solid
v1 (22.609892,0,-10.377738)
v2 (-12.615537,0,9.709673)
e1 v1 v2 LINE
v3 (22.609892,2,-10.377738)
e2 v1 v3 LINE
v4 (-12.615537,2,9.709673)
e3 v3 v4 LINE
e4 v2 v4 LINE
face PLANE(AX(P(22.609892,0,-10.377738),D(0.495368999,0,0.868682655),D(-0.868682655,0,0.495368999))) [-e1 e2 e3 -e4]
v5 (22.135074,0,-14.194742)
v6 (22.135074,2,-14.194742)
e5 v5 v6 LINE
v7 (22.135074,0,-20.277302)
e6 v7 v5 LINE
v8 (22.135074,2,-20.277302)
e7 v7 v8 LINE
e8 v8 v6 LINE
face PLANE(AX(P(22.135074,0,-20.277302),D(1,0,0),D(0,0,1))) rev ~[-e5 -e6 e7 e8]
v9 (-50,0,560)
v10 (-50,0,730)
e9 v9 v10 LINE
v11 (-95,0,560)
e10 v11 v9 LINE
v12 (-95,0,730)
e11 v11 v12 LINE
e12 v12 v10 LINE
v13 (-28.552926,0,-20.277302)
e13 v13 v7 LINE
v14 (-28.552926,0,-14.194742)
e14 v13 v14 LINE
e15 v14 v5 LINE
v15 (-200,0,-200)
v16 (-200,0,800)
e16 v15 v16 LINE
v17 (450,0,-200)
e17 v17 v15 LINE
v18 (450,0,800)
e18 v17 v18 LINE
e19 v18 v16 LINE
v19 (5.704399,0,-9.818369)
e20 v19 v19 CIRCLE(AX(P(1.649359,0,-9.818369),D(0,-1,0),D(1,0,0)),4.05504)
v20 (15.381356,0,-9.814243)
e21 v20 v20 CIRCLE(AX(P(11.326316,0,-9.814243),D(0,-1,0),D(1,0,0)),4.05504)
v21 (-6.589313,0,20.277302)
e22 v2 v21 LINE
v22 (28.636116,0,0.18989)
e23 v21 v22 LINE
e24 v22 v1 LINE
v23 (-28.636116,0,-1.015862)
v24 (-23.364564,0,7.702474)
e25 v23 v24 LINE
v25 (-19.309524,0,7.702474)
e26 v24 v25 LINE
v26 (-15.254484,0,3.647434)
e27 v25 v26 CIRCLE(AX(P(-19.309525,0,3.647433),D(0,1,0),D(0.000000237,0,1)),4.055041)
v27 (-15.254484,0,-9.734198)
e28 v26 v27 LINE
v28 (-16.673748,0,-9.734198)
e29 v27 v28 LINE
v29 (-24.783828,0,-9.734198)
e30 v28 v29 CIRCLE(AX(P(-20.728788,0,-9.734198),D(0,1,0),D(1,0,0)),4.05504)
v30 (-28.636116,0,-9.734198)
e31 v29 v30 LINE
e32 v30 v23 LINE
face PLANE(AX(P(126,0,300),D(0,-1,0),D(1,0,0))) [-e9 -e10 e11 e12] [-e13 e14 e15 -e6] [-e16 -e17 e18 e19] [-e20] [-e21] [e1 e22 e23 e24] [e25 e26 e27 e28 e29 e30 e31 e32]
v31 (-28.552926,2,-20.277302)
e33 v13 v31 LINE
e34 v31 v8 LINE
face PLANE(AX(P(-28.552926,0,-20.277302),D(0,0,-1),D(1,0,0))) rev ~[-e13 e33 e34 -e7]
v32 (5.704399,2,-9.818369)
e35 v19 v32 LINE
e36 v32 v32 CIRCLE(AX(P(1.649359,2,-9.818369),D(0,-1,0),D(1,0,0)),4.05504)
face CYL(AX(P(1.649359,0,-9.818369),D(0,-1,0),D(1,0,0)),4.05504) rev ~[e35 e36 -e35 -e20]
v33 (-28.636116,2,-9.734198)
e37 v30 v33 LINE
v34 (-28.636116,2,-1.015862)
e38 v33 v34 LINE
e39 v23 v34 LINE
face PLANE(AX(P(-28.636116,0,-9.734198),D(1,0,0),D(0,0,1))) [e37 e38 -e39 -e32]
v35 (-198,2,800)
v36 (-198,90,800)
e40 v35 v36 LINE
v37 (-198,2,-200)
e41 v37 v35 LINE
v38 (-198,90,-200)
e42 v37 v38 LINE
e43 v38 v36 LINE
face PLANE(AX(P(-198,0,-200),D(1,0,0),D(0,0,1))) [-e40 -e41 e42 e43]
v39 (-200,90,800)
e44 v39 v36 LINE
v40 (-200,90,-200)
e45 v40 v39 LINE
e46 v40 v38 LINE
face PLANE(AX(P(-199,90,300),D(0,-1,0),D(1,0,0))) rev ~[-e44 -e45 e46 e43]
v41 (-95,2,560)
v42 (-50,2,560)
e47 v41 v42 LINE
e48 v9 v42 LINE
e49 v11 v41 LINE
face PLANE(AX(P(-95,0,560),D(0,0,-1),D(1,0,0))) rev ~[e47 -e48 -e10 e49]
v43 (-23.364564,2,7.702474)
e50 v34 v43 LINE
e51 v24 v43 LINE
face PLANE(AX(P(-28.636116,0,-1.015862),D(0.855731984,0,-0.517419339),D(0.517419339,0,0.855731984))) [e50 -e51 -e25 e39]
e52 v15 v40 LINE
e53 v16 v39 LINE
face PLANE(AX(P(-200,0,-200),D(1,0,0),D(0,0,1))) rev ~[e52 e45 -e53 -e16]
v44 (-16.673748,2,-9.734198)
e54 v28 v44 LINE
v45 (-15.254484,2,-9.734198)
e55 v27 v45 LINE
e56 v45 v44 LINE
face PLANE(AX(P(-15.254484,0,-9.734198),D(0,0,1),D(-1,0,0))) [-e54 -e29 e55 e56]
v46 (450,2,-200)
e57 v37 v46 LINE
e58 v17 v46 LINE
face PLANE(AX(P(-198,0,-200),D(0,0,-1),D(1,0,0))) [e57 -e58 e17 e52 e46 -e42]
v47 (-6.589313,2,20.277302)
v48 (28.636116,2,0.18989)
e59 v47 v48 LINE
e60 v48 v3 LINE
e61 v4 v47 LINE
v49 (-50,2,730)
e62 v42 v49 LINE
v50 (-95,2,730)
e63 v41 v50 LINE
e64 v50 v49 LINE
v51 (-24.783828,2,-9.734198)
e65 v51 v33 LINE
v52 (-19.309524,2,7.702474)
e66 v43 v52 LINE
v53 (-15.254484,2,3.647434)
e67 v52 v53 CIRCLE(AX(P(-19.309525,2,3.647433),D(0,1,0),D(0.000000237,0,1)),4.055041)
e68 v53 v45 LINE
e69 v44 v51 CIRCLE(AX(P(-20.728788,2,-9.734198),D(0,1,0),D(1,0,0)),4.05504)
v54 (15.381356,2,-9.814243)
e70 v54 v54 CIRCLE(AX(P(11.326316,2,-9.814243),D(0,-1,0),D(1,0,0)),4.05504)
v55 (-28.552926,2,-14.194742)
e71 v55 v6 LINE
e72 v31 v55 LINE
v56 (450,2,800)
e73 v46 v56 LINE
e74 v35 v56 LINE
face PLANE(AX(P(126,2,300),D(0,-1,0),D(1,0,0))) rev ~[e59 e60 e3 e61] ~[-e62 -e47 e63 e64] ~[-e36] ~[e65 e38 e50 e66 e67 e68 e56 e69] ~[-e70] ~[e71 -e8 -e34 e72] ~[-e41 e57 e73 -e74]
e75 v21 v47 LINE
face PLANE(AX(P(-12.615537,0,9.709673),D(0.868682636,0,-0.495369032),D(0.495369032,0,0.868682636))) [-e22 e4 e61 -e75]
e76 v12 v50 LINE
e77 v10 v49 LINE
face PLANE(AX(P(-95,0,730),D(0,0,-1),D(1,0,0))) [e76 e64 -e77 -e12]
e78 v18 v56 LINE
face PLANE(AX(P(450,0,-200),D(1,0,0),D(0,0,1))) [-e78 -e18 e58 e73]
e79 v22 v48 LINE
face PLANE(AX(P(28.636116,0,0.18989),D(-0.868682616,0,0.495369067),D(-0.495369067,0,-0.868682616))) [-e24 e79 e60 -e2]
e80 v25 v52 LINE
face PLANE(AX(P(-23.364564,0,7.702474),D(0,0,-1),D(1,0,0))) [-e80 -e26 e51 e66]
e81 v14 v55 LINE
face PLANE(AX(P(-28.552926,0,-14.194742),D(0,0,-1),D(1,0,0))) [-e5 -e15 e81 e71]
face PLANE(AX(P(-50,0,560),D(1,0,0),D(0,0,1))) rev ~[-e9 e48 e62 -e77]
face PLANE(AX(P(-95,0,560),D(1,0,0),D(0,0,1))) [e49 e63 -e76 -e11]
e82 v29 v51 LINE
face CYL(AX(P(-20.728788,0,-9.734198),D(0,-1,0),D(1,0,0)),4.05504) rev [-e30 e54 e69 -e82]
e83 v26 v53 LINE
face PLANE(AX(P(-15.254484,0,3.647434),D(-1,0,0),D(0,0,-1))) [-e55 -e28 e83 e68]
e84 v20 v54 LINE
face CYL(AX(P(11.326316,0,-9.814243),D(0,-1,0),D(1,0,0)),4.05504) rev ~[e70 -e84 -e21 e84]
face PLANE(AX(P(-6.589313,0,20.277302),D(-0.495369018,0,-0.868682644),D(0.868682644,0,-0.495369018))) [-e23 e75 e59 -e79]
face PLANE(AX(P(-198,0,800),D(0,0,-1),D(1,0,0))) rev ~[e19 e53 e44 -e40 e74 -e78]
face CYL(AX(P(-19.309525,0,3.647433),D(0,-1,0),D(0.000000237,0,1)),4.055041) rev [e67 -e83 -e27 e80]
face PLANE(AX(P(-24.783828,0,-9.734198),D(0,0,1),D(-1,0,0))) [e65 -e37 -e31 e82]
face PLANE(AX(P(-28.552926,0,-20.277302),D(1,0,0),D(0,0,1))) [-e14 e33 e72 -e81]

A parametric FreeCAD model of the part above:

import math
import FreeCAD as App
import Part
import Sketcher
from FreeCAD import Vector

doc = App.newDocument("Part")
body = doc.addObject("PartDesign::Body", "Body")

# Sketch on XZ plane
sketch1 = body.newObject("Sketcher::SketchObject", "Sketch")
sketch1.AttachmentSupport = (doc.getObject("XZ_Plane"), [""])
sketch1.MapMode = "FlatFace"
sketch1.addGeometry(Part.LineSegment(Vector(-200, 800, 0), Vector(-200, -200, 0)), False)
sketch1.addGeometry(Part.LineSegment(Vector(-200, -200, 0), Vector(-198, -200, 0)), False)
sketch1.addGeometry(Part.LineSegment(Vector(-198, -200, 0), Vector(-198, 800, 0)), False)
sketch1.addGeometry(Part.LineSegment(Vector(-198, 800, 0), Vector(-200, 800, 0)), False)
sketch1.addConstraint(Sketcher.Constraint("Coincident", 0, 2, 1, 1))
sketch1.addConstraint(Sketcher.Constraint("Coincident", 1, 2, 2, 1))
sketch1.addConstraint(Sketcher.Constraint("Coincident", 2, 2, 3, 1))
sketch1.addConstraint(Sketcher.Constraint("Coincident", 3, 2, 0, 1))
sketch1.addConstraint(Sketcher.Constraint("Vertical", 0))
sketch1.addConstraint(Sketcher.Constraint("Horizontal", 1))
sketch1.addConstraint(Sketcher.Constraint("Vertical", 2))
sketch1.addConstraint(Sketcher.Constraint("Horizontal", 3))
sketch1.addConstraint(Sketcher.Constraint("DistanceX", 1, 1, 1, 2, 2.0))
sketch1.addConstraint(Sketcher.Constraint("DistanceY", 0, 2, 0, 1, 1000.0))
sketch1.addConstraint(Sketcher.Constraint("DistanceX", 0, 2, -1, 1, 200.0))
sketch1.addConstraint(Sketcher.Constraint("DistanceY", 0, 2, -1, 1, 200.0))
pad1 = body.newObject("PartDesign::Pad", "Pad")
pad1.Profile = sketch1
pad1.Length = 90
pad1.Reversed = True

# Sketch on XZ plane
sketch2 = body.newObject("Sketcher::SketchObject", "Sketch001")
sketch2.AttachmentSupport = (doc.getObject("XZ_Plane"), [""])
sketch2.MapMode = "FlatFace"
sketch2.addGeometry(Part.LineSegment(Vector(-198, 800, 0), Vector(-198, -200, 0)), False)
sketch2.addGeometry(Part.LineSegment(Vector(-198, -200, 0), Vector(450, -200, 0)), False)
sketch2.addGeometry(Part.LineSegment(Vector(450, -200, 0), Vector(450, 800, 0)), False)
sketch2.addGeometry(Part.LineSegment(Vector(450, 800, 0), Vector(-198, 800, 0)), False)
sketch2.addGeometry(Part.LineSegment(Vector(-24.8, -9.7, 0), Vector(-28.6, -9.7, 0)), False)
sketch2.addGeometry(Part.LineSegment(Vector(-28.6, -9.7, 0), Vector(-28.6, -1, 0)), False)
sketch2.addGeometry(Part.LineSegment(Vector(-28.6, -1, 0), Vector(-23.4, 7.7, 0)), False)
sketch2.addGeometry(Part.LineSegment(Vector(-23.4, 7.7, 0), Vector(-19.3, 7.7, 0)), False)
sketch2.addGeometry(Part.ArcOfCircle(Part.Circle(Vector(-19.3, 3.6, 0), Vector(0, 0, 1), 4.1), math.radians(0), math.radians(90)), False)
sketch2.addGeometry(Part.LineSegment(Vector(-15.3, 3.6, 0), Vector(-15.3, -9.7, 0)), False)
sketch2.addGeometry(Part.LineSegment(Vector(-15.3, -9.7, 0), Vector(-16.7, -9.7, 0)), False)
sketch2.addGeometry(Part.ArcOfCircle(Part.Circle(Vector(-20.7, -9.7, 0), Vector(0, 0, 1), 4.1), math.radians(180), math.radians(360)), False)
sketch2.addGeometry(Part.LineSegment(Vector(22.1, -20.3, 0), Vector(-28.6, -20.3, 0)), False)
sketch2.addGeometry(Part.LineSegment(Vector(-28.6, -20.3, 0), Vector(-28.6, -14.2, 0)), False)
sketch2.addGeometry(Part.LineSegment(Vector(-28.6, -14.2, 0), Vector(22.1, -14.2, 0)), False)
sketch2.addGeometry(Part.LineSegment(Vector(22.1, -14.2, 0), Vector(22.1, -20.3, 0)), False)
sketch2.addGeometry(Part.Circle(Vector(1.6, -9.8, 0), Vector(0, 0, 1), 4.1), False)
sketch2.addGeometry(Part.Circle(Vector(11.3, -9.8, 0), Vector(0, 0, 1), 4.1), False)
sketch2.addGeometry(Part.LineSegment(Vector(28.6, 0.2, 0), Vector(22.6, -10.4, 0)), False)
sketch2.addGeometry(Part.LineSegment(Vector(22.6, -10.4, 0), Vector(-12.6, 9.7, 0)), False)
sketch2.addGeometry(Part.LineSegment(Vector(-12.6, 9.7, 0), Vector(-6.6, 20.3, 0)), False)
sketch2.addGeometry(Part.LineSegment(Vector(-6.6, 20.3, 0), Vector(28.6, 0.2, 0)), False)
sketch2.addGeometry(Part.LineSegment(Vector(-50, 560, 0), Vector(-95, 560, 0)), False)
sketch2.addGeometry(Part.LineSegment(Vector(-95, 560, 0), Vector(-95, 730, 0)), False)
sketch2.addGeometry(Part.LineSegment(Vector(-95, 730, 0), Vector(-50, 730, 0)), False)
sketch2.addGeometry(Part.LineSegment(Vector(-50, 730, 0), Vector(-50, 560, 0)), False)
sketch2.addConstraint(Sketcher.Constraint("Coincident", 0, 2, 1, 1))
sketch2.addConstraint(Sketcher.Constraint("Coincident", 1, 2, 2, 1))
sketch2.addConstraint(Sketcher.Constraint("Coincident", 2, 2, 3, 1))
sketch2.addConstraint(Sketcher.Constraint("Coincident", 3, 2, 0, 1))
sketch2.addConstraint(Sketcher.Constraint("Coincident", 4, 2, 5, 1))
sketch2.addConstraint(Sketcher.Constraint("Coincident", 5, 2, 6, 1))
sketch2.addConstraint(Sketcher.Constraint("Coincident", 6, 2, 7, 1))
sketch2.addConstraint(Sketcher.Constraint("Tangent", 7, 2, 8, 2))
sketch2.addConstraint(Sketcher.Constraint("Tangent", 8, 1, 9, 1))
sketch2.addConstraint(Sketcher.Constraint("Coincident", 9, 2, 10, 1))
sketch2.addConstraint(Sketcher.Constraint("Coincident", 10, 2, 11, 2))
sketch2.addConstraint(Sketcher.Constraint("Coincident", 11, 1, 4, 1))
sketch2.addConstraint(Sketcher.Constraint("Coincident", 12, 2, 13, 1))
sketch2.addConstraint(Sketcher.Constraint("Coincident", 13, 2, 14, 1))
sketch2.addConstraint(Sketcher.Constraint("Coincident", 14, 2, 15, 1))
sketch2.addConstraint(Sketcher.Constraint("Coincident", 15, 2, 12, 1))
sketch2.addConstraint(Sketcher.Constraint("Coincident", 18, 2, 19, 1))
sketch2.addConstraint(Sketcher.Constraint("Coincident", 19, 2, 20, 1))
sketch2.addConstraint(Sketcher.Constraint("Coincident", 20, 2, 21, 1))
sketch2.addConstraint(Sketcher.Constraint("Coincident", 21, 2, 18, 1))
sketch2.addConstraint(Sketcher.Constraint("Coincident", 22, 2, 23, 1))
sketch2.addConstraint(Sketcher.Constraint("Coincident", 23, 2, 24, 1))
sketch2.addConstraint(Sketcher.Constraint("Coincident", 24, 2, 25, 1))
sketch2.addConstraint(Sketcher.Constraint("Coincident", 25, 2, 22, 1))
sketch2.addConstraint(Sketcher.Constraint("Vertical", 0))
sketch2.addConstraint(Sketcher.Constraint("Horizontal", 1))
sketch2.addConstraint(Sketcher.Constraint("Vertical", 2))
sketch2.addConstraint(Sketcher.Constraint("Horizontal", 3))
sketch2.addConstraint(Sketcher.Constraint("Horizontal", 4))
sketch2.addConstraint(Sketcher.Constraint("Vertical", 5))
sketch2.addConstraint(Sketcher.Constraint("Horizontal", 7))
sketch2.addConstraint(Sketcher.Constraint("Vertical", 9))
sketch2.addConstraint(Sketcher.Constraint("Horizontal", 10))
sketch2.addConstraint(Sketcher.Constraint("Horizontal", 12))
sketch2.addConstraint(Sketcher.Constraint("Vertical", 13))
sketch2.addConstraint(Sketcher.Constraint("Horizontal", 14))
sketch2.addConstraint(Sketcher.Constraint("Vertical", 15))
sketch2.addConstraint(Sketcher.Constraint("Horizontal", 22))
sketch2.addConstraint(Sketcher.Constraint("Vertical", 23))
sketch2.addConstraint(Sketcher.Constraint("Horizontal", 24))
sketch2.addConstraint(Sketcher.Constraint("Vertical", 25))
sketch2.addConstraint(Sketcher.Constraint("Equal", 8, 11))
sketch2.addConstraint(Sketcher.Constraint("Equal", 11, 16))
sketch2.addConstraint(Sketcher.Constraint("Equal", 16, 17))
sketch2.addConstraint(Sketcher.Constraint("Perpendicular", 18, 19))
sketch2.addConstraint(Sketcher.Constraint("Perpendicular", 19, 20))
sketch2.addConstraint(Sketcher.Constraint("Perpendicular", 20, 21))
sketch2.addConstraint(Sketcher.Constraint("Horizontal", 11, 3, 4, 2))
sketch2.addConstraint(Sketcher.Constraint("Horizontal", 4, 2, 9, 2))
sketch2.addConstraint(Sketcher.Constraint("DistanceX", 1, 1, 1, 2, 648.0))
sketch2.addConstraint(Sketcher.Constraint("DistanceX", 22, 2, 22, 1, 45.0))
sketch2.addConstraint(Sketcher.Constraint("DistanceY", 0, 2, 0, 1, 1000.0))
sketch2.addConstraint(Sketcher.Constraint("DistanceY", 23, 1, 23, 2, 170.0))
sketch2.addConstraint(Sketcher.Constraint("DistanceX", 0, 2, -1, 1, 198.0))
sketch2.addConstraint(Sketcher.Constraint("DistanceY", 0, 2, -1, 1, 200.0))
sketch2.addConstraint(Sketcher.Constraint("DistanceX", 22, 2, -1, 1, 95.0))
sketch2.addConstraint(Sketcher.Constraint("DistanceY", -1, 1, 22, 2, 560.0))
sketch2.addConstraint(Sketcher.Constraint("Diameter", 16, 8.11008))
sketch2.addConstraint(Sketcher.Constraint("DistanceX", 12, 2, 12, 1, 50.688))
sketch2.addConstraint(Sketcher.Constraint("Distance", 19, 40.5504))
sketch2.addConstraint(Sketcher.Constraint("DistanceX", 4, 2, 4, 1, 3.852288))
sketch2.addConstraint(Sketcher.Constraint("DistanceX", 7, 1, 7, 2, 4.05504))
sketch2.addConstraint(Sketcher.Constraint("DistanceY", 13, 1, 13, 2, 6.08256))
sketch2.addConstraint(Sketcher.Constraint("DistanceY", 12, 2, -1, 1, 20.277302))
sketch2.addConstraint(Sketcher.Constraint("DistanceY", -1, 1, 20, 2, 20.277302))
sketch2.addConstraint(Sketcher.Constraint("DistanceY", 0, 2, 11, 3, 190.265802))
sketch2.addConstraint(Sketcher.Constraint("DistanceY", 14, 2, 17, 3, 4.380499))
sketch2.addConstraint(Sketcher.Constraint("DistanceY", 7, 2, 19, 2, 2.007199))
sketch2.addConstraint(Sketcher.Constraint("DistanceX", 17, 3, 21, 2, 17.3098))
sketch2.addConstraint(Sketcher.Constraint("Distance", 6, 10.188162))
sketch2.addConstraint(Sketcher.Constraint("Distance", 18, 12.16512))
sketch2.addConstraint(Sketcher.Constraint("DistanceX", 10, 2, 10, 1, 1.419264))
sketch2.addConstraint(Sketcher.Constraint("DistanceY", 5, 1, 5, 2, 8.718336))
sketch2.addConstraint(Sketcher.Constraint("DistanceX", 11, 3, -1, 1, 20.728788))
sketch2.addConstraint(Sketcher.Constraint("DistanceX", -1, 1, 16, 3, 1.649359))
sketch2.addConstraint(Sketcher.Constraint("DistanceY", 16, 3, -1, 1, 9.818369))
sketch2.addConstraint(Sketcher.Constraint("DistanceX", -1, 1, 18, 2, 22.609892))
sketch2.addConstraint(Sketcher.Constraint("DistanceX", 4, 2, 12, 2, 0.08319))
pad2 = body.newObject("PartDesign::Pad", "Pad001")
pad2.Profile = sketch2
pad2.Length = 2
pad2.Reversed = True

doc.recompute()
